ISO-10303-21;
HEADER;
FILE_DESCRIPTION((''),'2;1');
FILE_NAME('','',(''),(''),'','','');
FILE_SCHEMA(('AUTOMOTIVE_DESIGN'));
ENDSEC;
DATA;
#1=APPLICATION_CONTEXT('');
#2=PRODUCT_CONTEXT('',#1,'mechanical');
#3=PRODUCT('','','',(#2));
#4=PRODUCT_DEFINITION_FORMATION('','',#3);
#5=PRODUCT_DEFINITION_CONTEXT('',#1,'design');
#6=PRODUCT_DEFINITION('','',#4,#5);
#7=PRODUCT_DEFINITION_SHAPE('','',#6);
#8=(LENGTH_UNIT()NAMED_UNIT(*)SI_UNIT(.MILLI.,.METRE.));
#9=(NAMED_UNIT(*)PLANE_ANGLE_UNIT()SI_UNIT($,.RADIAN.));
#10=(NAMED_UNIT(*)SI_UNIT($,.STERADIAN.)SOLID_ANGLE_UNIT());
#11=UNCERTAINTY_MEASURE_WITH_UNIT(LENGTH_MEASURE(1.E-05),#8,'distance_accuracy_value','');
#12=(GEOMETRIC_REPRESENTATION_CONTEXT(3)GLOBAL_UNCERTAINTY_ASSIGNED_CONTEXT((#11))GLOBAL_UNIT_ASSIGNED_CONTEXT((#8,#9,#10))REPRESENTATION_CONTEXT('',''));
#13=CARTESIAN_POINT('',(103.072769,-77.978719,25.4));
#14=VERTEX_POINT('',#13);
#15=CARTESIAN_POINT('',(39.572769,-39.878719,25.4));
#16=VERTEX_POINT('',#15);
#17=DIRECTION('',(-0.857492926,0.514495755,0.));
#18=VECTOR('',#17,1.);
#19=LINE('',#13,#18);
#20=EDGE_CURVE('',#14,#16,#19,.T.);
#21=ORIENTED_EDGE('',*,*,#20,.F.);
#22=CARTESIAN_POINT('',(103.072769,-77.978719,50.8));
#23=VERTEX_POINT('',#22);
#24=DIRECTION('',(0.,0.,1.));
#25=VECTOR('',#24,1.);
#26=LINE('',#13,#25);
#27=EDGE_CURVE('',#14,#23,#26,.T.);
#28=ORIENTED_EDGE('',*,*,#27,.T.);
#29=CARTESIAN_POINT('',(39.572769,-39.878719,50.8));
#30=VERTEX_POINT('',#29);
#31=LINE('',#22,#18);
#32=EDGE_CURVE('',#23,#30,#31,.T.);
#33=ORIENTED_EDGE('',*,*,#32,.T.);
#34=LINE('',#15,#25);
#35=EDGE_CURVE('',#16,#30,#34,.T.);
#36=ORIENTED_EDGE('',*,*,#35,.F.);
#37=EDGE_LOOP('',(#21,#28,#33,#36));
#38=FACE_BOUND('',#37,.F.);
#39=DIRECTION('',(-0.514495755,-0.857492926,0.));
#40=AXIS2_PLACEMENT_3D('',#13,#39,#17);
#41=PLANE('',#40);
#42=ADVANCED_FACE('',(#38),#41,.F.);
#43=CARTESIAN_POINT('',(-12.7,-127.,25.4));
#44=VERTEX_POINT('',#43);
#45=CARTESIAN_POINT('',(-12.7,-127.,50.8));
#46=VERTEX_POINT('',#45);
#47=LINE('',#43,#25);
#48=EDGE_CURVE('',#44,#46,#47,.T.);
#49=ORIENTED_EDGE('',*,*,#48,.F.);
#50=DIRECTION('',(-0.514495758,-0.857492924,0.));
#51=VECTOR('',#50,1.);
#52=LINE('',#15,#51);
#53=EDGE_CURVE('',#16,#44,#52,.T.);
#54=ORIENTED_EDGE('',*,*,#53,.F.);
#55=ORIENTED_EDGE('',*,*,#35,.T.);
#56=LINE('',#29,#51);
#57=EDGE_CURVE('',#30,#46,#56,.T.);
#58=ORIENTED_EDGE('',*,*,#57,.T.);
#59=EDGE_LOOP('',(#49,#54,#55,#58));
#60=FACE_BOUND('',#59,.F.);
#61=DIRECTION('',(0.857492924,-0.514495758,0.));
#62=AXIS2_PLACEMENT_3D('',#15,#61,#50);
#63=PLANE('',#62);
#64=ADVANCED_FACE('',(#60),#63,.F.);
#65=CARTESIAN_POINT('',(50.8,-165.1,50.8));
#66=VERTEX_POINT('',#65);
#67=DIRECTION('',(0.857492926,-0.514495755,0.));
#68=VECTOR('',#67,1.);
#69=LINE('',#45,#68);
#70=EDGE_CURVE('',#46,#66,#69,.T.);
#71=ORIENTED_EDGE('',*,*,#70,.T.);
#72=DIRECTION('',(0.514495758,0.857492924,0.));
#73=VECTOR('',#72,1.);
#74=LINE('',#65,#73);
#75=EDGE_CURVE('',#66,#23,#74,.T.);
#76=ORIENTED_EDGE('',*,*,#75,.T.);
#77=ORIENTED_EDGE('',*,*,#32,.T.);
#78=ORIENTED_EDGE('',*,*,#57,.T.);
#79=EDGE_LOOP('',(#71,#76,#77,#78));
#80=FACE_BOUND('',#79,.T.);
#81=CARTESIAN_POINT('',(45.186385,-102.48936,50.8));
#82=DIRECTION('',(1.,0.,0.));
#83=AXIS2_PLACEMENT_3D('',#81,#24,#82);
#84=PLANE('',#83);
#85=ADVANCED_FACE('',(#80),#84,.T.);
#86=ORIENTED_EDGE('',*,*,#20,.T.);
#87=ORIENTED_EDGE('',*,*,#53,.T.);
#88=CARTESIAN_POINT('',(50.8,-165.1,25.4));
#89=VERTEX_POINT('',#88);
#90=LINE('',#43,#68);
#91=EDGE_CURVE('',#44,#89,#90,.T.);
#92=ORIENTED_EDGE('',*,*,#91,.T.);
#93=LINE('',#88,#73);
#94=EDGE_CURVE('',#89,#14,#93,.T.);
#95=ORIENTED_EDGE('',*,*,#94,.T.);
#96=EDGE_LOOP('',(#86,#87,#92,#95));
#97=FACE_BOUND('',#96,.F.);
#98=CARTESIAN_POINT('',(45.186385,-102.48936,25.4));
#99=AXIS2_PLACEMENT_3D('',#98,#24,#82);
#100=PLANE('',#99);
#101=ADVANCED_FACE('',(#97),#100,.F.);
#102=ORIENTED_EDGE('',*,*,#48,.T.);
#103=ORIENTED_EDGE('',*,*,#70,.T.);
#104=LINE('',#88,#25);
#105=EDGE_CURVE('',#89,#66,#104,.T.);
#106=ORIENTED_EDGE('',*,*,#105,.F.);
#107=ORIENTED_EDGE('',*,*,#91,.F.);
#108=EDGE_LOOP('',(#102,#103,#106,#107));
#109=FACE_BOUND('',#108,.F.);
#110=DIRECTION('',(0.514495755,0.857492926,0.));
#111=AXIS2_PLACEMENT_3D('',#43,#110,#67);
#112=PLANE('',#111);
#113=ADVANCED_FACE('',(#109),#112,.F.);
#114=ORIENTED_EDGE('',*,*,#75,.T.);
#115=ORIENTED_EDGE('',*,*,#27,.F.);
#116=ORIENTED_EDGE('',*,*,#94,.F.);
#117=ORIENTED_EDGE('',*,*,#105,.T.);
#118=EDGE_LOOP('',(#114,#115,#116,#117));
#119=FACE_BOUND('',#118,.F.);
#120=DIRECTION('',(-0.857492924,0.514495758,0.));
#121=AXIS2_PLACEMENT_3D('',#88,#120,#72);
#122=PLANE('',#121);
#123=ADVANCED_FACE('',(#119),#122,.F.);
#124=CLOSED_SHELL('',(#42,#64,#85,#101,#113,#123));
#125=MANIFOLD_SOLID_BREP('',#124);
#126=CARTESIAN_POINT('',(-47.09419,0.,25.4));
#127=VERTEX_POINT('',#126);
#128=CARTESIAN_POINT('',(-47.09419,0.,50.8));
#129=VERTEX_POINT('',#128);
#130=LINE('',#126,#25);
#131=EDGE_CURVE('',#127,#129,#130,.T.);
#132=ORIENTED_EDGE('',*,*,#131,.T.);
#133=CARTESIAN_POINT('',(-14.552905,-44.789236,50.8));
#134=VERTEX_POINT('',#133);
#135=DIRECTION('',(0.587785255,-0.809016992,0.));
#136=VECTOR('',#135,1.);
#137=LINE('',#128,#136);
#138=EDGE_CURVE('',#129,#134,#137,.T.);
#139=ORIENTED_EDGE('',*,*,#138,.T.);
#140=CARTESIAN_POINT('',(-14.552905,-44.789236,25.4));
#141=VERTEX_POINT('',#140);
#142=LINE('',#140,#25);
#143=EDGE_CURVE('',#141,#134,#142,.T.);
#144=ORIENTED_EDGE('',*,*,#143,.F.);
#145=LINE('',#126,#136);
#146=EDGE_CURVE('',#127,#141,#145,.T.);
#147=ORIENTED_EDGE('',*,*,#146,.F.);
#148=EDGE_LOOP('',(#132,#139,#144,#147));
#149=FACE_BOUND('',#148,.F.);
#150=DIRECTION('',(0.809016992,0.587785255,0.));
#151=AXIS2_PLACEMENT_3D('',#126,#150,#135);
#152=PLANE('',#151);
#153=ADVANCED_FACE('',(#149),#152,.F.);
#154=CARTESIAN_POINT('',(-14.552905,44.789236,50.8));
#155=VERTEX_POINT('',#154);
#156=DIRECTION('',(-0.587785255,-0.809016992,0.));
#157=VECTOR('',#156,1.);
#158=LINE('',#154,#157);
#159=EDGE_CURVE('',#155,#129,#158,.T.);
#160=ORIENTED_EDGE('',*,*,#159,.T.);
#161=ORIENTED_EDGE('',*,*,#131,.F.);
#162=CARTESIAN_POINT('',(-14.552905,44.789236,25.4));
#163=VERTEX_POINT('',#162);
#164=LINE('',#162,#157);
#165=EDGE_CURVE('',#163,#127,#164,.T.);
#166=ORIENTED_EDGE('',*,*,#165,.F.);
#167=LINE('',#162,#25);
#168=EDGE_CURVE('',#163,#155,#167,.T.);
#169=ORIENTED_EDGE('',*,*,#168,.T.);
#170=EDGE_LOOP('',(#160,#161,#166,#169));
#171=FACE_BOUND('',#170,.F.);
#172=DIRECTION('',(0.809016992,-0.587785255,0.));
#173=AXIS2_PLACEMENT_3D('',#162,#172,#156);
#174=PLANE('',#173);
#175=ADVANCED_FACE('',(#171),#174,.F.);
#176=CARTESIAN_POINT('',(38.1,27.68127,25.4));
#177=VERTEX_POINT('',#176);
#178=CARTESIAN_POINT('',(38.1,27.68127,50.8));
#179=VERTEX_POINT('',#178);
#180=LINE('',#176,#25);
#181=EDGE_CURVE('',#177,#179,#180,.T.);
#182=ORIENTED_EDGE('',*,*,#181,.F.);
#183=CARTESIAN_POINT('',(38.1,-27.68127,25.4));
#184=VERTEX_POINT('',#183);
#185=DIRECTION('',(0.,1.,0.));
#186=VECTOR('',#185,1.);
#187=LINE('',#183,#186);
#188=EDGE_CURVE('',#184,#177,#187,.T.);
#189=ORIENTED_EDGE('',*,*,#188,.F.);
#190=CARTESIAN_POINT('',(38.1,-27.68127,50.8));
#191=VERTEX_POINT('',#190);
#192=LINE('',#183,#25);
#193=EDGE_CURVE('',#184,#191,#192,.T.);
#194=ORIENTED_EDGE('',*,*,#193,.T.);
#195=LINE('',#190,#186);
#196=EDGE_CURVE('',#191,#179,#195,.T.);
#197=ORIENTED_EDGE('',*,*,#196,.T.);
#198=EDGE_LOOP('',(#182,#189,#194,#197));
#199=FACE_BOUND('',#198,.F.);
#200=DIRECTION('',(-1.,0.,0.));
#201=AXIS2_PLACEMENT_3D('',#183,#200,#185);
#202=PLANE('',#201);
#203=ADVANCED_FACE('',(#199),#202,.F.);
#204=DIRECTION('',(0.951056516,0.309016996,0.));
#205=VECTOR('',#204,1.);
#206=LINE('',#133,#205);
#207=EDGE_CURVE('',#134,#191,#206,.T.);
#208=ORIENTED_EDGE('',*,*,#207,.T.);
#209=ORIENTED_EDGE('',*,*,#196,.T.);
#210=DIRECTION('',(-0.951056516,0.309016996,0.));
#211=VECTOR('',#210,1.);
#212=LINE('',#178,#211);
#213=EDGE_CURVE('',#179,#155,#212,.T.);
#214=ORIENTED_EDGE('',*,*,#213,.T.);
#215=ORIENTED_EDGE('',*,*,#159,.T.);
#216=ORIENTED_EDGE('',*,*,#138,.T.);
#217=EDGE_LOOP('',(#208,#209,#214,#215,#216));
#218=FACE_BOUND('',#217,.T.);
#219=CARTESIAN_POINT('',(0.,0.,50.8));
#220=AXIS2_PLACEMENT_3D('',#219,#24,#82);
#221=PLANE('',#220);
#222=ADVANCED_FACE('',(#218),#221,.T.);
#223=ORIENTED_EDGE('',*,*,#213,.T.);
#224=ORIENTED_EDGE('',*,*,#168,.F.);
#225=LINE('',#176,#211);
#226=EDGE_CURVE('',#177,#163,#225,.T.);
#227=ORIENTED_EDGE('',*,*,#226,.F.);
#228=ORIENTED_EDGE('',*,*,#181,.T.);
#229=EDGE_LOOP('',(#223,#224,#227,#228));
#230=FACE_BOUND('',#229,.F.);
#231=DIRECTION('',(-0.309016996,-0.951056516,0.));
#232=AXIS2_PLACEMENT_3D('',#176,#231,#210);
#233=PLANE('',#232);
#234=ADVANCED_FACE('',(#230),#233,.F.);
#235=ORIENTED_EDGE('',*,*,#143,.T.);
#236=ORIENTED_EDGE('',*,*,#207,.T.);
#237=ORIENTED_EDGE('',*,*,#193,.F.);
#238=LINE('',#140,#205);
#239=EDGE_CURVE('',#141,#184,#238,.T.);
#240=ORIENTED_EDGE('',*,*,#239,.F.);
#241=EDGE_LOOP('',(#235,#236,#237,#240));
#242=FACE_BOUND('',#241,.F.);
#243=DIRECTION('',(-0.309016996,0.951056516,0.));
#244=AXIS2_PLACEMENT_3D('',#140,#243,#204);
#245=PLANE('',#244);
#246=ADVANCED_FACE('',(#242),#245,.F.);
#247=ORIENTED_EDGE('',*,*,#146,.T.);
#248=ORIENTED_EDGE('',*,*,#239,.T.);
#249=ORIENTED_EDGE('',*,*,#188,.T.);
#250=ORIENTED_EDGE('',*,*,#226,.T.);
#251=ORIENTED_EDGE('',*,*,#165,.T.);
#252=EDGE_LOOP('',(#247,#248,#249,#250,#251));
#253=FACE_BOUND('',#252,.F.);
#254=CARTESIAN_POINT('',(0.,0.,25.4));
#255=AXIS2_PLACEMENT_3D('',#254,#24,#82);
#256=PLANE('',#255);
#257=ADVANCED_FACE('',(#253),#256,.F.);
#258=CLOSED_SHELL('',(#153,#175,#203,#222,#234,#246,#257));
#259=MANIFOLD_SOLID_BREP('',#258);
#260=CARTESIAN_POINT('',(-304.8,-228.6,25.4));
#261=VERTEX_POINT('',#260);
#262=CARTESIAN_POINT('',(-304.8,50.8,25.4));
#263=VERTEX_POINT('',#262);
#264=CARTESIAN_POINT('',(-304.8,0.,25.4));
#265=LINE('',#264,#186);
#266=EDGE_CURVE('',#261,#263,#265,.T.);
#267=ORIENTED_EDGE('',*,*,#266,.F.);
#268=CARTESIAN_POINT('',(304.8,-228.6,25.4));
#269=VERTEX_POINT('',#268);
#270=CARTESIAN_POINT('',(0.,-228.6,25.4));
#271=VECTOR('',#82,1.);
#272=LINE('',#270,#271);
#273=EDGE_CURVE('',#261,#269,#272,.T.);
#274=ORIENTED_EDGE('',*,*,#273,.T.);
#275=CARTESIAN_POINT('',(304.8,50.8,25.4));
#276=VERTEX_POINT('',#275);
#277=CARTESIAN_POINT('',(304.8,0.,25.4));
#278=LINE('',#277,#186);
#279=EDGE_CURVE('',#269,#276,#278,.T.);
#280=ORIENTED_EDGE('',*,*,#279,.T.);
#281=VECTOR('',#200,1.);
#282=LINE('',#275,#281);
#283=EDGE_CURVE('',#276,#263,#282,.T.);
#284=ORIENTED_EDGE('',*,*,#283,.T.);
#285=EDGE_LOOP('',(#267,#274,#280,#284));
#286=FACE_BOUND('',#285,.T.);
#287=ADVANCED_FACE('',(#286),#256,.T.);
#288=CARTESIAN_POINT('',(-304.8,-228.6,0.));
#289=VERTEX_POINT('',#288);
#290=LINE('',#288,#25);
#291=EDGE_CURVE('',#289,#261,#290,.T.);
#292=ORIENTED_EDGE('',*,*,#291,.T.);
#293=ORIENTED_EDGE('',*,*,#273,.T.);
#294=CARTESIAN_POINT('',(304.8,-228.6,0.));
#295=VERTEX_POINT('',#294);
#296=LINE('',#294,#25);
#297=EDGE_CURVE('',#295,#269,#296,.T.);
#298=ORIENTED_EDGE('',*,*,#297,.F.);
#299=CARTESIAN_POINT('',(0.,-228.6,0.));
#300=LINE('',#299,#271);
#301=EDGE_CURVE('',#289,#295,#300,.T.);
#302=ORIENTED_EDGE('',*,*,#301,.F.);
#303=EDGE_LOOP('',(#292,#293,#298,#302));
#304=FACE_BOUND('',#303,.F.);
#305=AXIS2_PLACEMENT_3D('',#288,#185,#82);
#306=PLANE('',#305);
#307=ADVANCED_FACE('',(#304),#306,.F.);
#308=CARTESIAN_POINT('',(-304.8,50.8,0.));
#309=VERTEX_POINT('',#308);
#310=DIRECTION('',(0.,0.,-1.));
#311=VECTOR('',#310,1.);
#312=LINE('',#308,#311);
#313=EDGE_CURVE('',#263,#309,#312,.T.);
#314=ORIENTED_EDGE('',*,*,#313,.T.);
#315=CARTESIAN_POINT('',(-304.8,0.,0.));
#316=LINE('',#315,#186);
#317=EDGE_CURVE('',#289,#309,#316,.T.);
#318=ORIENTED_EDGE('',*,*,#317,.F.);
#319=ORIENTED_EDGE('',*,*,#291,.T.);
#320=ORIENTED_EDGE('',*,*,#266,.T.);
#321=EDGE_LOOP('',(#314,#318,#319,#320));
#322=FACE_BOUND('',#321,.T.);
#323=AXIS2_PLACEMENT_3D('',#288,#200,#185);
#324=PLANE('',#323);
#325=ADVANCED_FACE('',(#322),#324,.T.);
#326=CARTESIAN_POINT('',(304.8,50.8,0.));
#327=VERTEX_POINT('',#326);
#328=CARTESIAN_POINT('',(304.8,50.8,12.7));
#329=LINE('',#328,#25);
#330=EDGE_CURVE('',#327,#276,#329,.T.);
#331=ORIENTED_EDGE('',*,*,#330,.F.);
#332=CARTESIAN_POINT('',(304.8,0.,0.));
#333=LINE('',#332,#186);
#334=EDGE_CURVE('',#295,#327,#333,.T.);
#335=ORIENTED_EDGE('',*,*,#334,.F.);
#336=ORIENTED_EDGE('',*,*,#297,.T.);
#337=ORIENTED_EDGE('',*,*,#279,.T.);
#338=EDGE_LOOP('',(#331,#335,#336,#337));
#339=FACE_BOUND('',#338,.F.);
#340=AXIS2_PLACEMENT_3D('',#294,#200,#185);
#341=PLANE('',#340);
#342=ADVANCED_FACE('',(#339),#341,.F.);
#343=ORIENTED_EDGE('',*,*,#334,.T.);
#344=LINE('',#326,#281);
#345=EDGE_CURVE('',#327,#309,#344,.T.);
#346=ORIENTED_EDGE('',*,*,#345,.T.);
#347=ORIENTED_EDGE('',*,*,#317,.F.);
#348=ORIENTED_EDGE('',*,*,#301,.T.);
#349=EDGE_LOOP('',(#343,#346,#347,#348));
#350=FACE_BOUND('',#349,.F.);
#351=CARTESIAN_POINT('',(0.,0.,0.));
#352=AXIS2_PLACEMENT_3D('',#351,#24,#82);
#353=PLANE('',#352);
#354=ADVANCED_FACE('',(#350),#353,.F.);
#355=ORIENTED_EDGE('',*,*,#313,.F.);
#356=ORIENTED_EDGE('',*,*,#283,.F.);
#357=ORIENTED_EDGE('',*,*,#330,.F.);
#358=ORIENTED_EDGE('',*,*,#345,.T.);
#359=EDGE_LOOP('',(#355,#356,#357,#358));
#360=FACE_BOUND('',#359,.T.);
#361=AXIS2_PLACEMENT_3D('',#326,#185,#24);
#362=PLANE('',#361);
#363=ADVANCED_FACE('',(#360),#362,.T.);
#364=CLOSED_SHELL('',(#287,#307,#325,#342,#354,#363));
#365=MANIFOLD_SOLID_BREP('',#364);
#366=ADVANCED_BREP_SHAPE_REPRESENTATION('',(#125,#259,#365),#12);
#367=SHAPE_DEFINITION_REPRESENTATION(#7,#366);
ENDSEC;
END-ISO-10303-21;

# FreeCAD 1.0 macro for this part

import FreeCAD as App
import Part
import Sketcher
from FreeCAD import Vector
Q = App.Units.Quantity

doc = App.newDocument("Part")
params = doc.addObject("Spreadsheet::Sheet", "Params")
for row, (alias, value) in enumerate([
    ("sketch1_width", "24 in"),
    ("sketch1_height", "18 in"),
    ("pad1_length", "1 in"),
    ("sketch2_width", "7 in"),
    ("sketch2_height", "1 in"),
    ("sketch3_length", "4 in"),
    ("pad2_length", "1 in"),
], start=1):
    params.set(f"A{row}", alias)
    params.set(f"B{row}", "=" + value)
    params.setAlias(f"B{row}", alias)

body = doc.addObject("PartDesign::Body", "Body")

sketch1 = body.newObject("Sketcher::SketchObject", "Sketch")
sketch1.AttachmentSupport = (doc.getObject("XY_Plane"), [""])
sketch1.MapMode = "FlatFace"
sketch1.addGeometry(Part.LineSegment(Vector(-305, 229, 0), Vector(-305, -229, 0)), False)
sketch1.addGeometry(Part.LineSegment(Vector(-305, -229, 0), Vector(305, -229, 0)), False)
sketch1.addGeometry(Part.LineSegment(Vector(305, -229, 0), Vector(305, 229, 0)), False)
sketch1.addGeometry(Part.LineSegment(Vector(305, 229, 0), Vector(-305, 229, 0)), False)
sketch1.addConstraint(Sketcher.Constraint("Coincident", 0, 2, 1, 1))
sketch1.addConstraint(Sketcher.Constraint("Coincident", 1, 2, 2, 1))
sketch1.addConstraint(Sketcher.Constraint("Coincident", 2, 2, 3, 1))
sketch1.addConstraint(Sketcher.Constraint("Coincident", 3, 2, 0, 1))
sketch1.addConstraint(Sketcher.Constraint("Vertical", 0))
sketch1.addConstraint(Sketcher.Constraint("Horizontal", 1))
sketch1.addConstraint(Sketcher.Constraint("Vertical", 2))
sketch1.addConstraint(Sketcher.Constraint("Horizontal", 3))
sketch1.addConstraint(Sketcher.Constraint("Symmetric", 0, 2, 2, 2, -1, 1))
sketch1.addConstraint(Sketcher.Constraint("DistanceX", 1, 1, 1, 2, Q("24 in")))
sketch1.addConstraint(Sketcher.Constraint("DistanceY", 0, 2, 0, 1, Q("18 in")))
sketch1.setExpression("Constraints[9]", "Params.sketch1_width")
sketch1.setExpression("Constraints[10]", "Params.sketch1_height")
pad1 = body.newObject("PartDesign::Pad", "Pad")
pad1.Profile = sketch1
pad1.setExpression("Length", "Params.pad1_length")

sketch2 = body.newObject("Sketcher::SketchObject", "Sketch001")
sketch2.AttachmentSupport = (doc.getObject("YZ_Plane"), [""])
sketch2.MapMode = "FlatFace"
sketch2.AttachmentOffset = App.Placement(Vector(0, 0, 12 * 25.4), App.Rotation())
sketch2.addGeometry(Part.LineSegment(Vector(51, 25, 0), Vector(51, 0, 0)), False)
sketch2.addGeometry(Part.LineSegment(Vector(51, 0, 0), Vector(229, 0, 0)), False)
sketch2.addGeometry(Part.LineSegment(Vector(229, 0, 0), Vector(229, 25, 0)), False)
sketch2.addGeometry(Part.LineSegment(Vector(229, 25, 0), Vector(51, 25, 0)), False)
sketch2.addConstraint(Sketcher.Constraint("Coincident", 0, 2, 1, 1))
sketch2.addConstraint(Sketcher.Constraint("Coincident", 1, 2, 2, 1))
sketch2.addConstraint(Sketcher.Constraint("Coincident", 2, 2, 3, 1))
sketch2.addConstraint(Sketcher.Constraint("Coincident", 3, 2, 0, 1))
sketch2.addConstraint(Sketcher.Constraint("Vertical", 0))
sketch2.addConstraint(Sketcher.Constraint("Horizontal", 1))
sketch2.addConstraint(Sketcher.Constraint("Vertical", 2))
sketch2.addConstraint(Sketcher.Constraint("Horizontal", 3))
sketch2.addConstraint(Sketcher.Constraint("PointOnObject", 0, 2, -1))
sketch2.addConstraint(Sketcher.Constraint("DistanceX", 1, 1, 1, 2, Q("7 in")))
sketch2.addConstraint(Sketcher.Constraint("DistanceY", 0, 2, 0, 1, Q("1 in")))
sketch2.addConstraint(Sketcher.Constraint("DistanceX", -1, 1, 0, 2, Q("2 in")))
sketch2.setExpression("Constraints[9]", "Params.sketch2_width")
sketch2.setExpression("Constraints[10]", "Params.sketch2_height")
pocket1 = body.newObject("PartDesign::Pocket", "Pocket")
pocket1.Profile = sketch2
pocket1.Type = "ThroughAll"
body2 = doc.addObject("PartDesign::Body", "Body001")
body2.AllowCompound = True

sketch3 = body2.newObject("Sketcher::SketchObject", "Sketch002")
sketch3.AttachmentSupport = (doc.getObject("XY_Plane001"), [""])
sketch3.MapMode = "FlatFace"
sketch3.AttachmentOffset = App.Placement(Vector(0, 0, 1 * 25.4), App.Rotation())
sketch3.addGeometry(Part.LineSegment(Vector(-13, -127, 0), Vector(51, -165, 0)), False)
sketch3.addGeometry(Part.LineSegment(Vector(51, -165, 0), Vector(103, -78, 0)), False)
sketch3.addGeometry(Part.LineSegment(Vector(103, -78, 0), Vector(40, -40, 0)), False)
sketch3.addGeometry(Part.LineSegment(Vector(40, -40, 0), Vector(-13, -127, 0)), False)
sketch3.addGeometry(Part.LineSegment(Vector(38, -28, 0), Vector(38, 28, 0)), False)
sketch3.addGeometry(Part.LineSegment(Vector(38, 28, 0), Vector(-15, 45, 0)), False)
sketch3.addGeometry(Part.LineSegment(Vector(-15, 45, 0), Vector(-47, 0, 0)), False)
sketch3.addGeometry(Part.LineSegment(Vector(-47, 0, 0), Vector(-15, -45, 0)), False)
sketch3.addGeometry(Part.LineSegment(Vector(-15, -45, 0), Vector(38, -28, 0)), False)
sketch3.addConstraint(Sketcher.Constraint("Coincident", 0, 2, 1, 1))
sketch3.addConstraint(Sketcher.Constraint("Coincident", 1, 2, 2, 1))
sketch3.addConstraint(Sketcher.Constraint("Coincident", 2, 2, 3, 1))
sketch3.addConstraint(Sketcher.Constraint("Coincident", 3, 2, 0, 1))
sketch3.addConstraint(Sketcher.Constraint("Coincident", 4, 2, 5, 1))
sketch3.addConstraint(Sketcher.Constraint("Coincident", 5, 2, 6, 1))
sketch3.addConstraint(Sketcher.Constraint("Coincident", 6, 2, 7, 1))
sketch3.addConstraint(Sketcher.Constraint("Coincident", 7, 2, 8, 1))
sketch3.addConstraint(Sketcher.Constraint("Coincident", 8, 2, 4, 1))
sketch3.addConstraint(Sketcher.Constraint("Vertical", 4))
sketch3.addConstraint(Sketcher.Constraint("Symmetric", 5, 2, 7, 2, -1))
sketch3.addConstraint(Sketcher.Constraint("PointOnObject", 6, 2, -1))
sketch3.addConstraint(Sketcher.Constraint("Perpendicular", 0, 1))
sketch3.addConstraint(Sketcher.Constraint("Perpendicular", 1, 2))
sketch3.addConstraint(Sketcher.Constraint("Perpendicular", 2, 3))
sketch3.addConstraint(Sketcher.Constraint("Equal", 5, 6))
sketch3.addConstraint(Sketcher.Constraint("Equal", 7, 8))
sketch3.addConstraint(Sketcher.Constraint("Distance", 1, Q("4 in")))
sketch3.addConstraint(Sketcher.Constraint("DistanceX", -1, 1, 0, 2, Q("2 in")))
sketch3.addConstraint(Sketcher.Constraint("DistanceY", 3, 2, -1, 1, Q("5 in")))
sketch3.addConstraint(Sketcher.Constraint("Angle", 5, Q("162 deg")))
sketch3.addConstraint(Sketcher.Constraint("Angle", 6, Q("-126 deg")))
sketch3.addConstraint(Sketcher.Constraint("DistanceX", 3, 2, 4, 2, Q("2 in")))
sketch3.addConstraint(Sketcher.Constraint("DistanceY", 0, 2, -1, 1, Q("6.5 in")))
sketch3.addConstraint(Sketcher.Constraint("DistanceX", 3, 2, -1, 1, Q("0.5 in")))
sketch3.addConstraint(Sketcher.Constraint("DistanceY", 4, 1, 4, 2, Q("55.36254 mm")))
sketch3.setExpression("Constraints[17]", "Params.sketch3_length")
pad2 = body2.newObject("PartDesign::Pad", "Pad001")
pad2.Profile = sketch3
pad2.setExpression("Length", "Params.pad2_length")

doc.recompute()
